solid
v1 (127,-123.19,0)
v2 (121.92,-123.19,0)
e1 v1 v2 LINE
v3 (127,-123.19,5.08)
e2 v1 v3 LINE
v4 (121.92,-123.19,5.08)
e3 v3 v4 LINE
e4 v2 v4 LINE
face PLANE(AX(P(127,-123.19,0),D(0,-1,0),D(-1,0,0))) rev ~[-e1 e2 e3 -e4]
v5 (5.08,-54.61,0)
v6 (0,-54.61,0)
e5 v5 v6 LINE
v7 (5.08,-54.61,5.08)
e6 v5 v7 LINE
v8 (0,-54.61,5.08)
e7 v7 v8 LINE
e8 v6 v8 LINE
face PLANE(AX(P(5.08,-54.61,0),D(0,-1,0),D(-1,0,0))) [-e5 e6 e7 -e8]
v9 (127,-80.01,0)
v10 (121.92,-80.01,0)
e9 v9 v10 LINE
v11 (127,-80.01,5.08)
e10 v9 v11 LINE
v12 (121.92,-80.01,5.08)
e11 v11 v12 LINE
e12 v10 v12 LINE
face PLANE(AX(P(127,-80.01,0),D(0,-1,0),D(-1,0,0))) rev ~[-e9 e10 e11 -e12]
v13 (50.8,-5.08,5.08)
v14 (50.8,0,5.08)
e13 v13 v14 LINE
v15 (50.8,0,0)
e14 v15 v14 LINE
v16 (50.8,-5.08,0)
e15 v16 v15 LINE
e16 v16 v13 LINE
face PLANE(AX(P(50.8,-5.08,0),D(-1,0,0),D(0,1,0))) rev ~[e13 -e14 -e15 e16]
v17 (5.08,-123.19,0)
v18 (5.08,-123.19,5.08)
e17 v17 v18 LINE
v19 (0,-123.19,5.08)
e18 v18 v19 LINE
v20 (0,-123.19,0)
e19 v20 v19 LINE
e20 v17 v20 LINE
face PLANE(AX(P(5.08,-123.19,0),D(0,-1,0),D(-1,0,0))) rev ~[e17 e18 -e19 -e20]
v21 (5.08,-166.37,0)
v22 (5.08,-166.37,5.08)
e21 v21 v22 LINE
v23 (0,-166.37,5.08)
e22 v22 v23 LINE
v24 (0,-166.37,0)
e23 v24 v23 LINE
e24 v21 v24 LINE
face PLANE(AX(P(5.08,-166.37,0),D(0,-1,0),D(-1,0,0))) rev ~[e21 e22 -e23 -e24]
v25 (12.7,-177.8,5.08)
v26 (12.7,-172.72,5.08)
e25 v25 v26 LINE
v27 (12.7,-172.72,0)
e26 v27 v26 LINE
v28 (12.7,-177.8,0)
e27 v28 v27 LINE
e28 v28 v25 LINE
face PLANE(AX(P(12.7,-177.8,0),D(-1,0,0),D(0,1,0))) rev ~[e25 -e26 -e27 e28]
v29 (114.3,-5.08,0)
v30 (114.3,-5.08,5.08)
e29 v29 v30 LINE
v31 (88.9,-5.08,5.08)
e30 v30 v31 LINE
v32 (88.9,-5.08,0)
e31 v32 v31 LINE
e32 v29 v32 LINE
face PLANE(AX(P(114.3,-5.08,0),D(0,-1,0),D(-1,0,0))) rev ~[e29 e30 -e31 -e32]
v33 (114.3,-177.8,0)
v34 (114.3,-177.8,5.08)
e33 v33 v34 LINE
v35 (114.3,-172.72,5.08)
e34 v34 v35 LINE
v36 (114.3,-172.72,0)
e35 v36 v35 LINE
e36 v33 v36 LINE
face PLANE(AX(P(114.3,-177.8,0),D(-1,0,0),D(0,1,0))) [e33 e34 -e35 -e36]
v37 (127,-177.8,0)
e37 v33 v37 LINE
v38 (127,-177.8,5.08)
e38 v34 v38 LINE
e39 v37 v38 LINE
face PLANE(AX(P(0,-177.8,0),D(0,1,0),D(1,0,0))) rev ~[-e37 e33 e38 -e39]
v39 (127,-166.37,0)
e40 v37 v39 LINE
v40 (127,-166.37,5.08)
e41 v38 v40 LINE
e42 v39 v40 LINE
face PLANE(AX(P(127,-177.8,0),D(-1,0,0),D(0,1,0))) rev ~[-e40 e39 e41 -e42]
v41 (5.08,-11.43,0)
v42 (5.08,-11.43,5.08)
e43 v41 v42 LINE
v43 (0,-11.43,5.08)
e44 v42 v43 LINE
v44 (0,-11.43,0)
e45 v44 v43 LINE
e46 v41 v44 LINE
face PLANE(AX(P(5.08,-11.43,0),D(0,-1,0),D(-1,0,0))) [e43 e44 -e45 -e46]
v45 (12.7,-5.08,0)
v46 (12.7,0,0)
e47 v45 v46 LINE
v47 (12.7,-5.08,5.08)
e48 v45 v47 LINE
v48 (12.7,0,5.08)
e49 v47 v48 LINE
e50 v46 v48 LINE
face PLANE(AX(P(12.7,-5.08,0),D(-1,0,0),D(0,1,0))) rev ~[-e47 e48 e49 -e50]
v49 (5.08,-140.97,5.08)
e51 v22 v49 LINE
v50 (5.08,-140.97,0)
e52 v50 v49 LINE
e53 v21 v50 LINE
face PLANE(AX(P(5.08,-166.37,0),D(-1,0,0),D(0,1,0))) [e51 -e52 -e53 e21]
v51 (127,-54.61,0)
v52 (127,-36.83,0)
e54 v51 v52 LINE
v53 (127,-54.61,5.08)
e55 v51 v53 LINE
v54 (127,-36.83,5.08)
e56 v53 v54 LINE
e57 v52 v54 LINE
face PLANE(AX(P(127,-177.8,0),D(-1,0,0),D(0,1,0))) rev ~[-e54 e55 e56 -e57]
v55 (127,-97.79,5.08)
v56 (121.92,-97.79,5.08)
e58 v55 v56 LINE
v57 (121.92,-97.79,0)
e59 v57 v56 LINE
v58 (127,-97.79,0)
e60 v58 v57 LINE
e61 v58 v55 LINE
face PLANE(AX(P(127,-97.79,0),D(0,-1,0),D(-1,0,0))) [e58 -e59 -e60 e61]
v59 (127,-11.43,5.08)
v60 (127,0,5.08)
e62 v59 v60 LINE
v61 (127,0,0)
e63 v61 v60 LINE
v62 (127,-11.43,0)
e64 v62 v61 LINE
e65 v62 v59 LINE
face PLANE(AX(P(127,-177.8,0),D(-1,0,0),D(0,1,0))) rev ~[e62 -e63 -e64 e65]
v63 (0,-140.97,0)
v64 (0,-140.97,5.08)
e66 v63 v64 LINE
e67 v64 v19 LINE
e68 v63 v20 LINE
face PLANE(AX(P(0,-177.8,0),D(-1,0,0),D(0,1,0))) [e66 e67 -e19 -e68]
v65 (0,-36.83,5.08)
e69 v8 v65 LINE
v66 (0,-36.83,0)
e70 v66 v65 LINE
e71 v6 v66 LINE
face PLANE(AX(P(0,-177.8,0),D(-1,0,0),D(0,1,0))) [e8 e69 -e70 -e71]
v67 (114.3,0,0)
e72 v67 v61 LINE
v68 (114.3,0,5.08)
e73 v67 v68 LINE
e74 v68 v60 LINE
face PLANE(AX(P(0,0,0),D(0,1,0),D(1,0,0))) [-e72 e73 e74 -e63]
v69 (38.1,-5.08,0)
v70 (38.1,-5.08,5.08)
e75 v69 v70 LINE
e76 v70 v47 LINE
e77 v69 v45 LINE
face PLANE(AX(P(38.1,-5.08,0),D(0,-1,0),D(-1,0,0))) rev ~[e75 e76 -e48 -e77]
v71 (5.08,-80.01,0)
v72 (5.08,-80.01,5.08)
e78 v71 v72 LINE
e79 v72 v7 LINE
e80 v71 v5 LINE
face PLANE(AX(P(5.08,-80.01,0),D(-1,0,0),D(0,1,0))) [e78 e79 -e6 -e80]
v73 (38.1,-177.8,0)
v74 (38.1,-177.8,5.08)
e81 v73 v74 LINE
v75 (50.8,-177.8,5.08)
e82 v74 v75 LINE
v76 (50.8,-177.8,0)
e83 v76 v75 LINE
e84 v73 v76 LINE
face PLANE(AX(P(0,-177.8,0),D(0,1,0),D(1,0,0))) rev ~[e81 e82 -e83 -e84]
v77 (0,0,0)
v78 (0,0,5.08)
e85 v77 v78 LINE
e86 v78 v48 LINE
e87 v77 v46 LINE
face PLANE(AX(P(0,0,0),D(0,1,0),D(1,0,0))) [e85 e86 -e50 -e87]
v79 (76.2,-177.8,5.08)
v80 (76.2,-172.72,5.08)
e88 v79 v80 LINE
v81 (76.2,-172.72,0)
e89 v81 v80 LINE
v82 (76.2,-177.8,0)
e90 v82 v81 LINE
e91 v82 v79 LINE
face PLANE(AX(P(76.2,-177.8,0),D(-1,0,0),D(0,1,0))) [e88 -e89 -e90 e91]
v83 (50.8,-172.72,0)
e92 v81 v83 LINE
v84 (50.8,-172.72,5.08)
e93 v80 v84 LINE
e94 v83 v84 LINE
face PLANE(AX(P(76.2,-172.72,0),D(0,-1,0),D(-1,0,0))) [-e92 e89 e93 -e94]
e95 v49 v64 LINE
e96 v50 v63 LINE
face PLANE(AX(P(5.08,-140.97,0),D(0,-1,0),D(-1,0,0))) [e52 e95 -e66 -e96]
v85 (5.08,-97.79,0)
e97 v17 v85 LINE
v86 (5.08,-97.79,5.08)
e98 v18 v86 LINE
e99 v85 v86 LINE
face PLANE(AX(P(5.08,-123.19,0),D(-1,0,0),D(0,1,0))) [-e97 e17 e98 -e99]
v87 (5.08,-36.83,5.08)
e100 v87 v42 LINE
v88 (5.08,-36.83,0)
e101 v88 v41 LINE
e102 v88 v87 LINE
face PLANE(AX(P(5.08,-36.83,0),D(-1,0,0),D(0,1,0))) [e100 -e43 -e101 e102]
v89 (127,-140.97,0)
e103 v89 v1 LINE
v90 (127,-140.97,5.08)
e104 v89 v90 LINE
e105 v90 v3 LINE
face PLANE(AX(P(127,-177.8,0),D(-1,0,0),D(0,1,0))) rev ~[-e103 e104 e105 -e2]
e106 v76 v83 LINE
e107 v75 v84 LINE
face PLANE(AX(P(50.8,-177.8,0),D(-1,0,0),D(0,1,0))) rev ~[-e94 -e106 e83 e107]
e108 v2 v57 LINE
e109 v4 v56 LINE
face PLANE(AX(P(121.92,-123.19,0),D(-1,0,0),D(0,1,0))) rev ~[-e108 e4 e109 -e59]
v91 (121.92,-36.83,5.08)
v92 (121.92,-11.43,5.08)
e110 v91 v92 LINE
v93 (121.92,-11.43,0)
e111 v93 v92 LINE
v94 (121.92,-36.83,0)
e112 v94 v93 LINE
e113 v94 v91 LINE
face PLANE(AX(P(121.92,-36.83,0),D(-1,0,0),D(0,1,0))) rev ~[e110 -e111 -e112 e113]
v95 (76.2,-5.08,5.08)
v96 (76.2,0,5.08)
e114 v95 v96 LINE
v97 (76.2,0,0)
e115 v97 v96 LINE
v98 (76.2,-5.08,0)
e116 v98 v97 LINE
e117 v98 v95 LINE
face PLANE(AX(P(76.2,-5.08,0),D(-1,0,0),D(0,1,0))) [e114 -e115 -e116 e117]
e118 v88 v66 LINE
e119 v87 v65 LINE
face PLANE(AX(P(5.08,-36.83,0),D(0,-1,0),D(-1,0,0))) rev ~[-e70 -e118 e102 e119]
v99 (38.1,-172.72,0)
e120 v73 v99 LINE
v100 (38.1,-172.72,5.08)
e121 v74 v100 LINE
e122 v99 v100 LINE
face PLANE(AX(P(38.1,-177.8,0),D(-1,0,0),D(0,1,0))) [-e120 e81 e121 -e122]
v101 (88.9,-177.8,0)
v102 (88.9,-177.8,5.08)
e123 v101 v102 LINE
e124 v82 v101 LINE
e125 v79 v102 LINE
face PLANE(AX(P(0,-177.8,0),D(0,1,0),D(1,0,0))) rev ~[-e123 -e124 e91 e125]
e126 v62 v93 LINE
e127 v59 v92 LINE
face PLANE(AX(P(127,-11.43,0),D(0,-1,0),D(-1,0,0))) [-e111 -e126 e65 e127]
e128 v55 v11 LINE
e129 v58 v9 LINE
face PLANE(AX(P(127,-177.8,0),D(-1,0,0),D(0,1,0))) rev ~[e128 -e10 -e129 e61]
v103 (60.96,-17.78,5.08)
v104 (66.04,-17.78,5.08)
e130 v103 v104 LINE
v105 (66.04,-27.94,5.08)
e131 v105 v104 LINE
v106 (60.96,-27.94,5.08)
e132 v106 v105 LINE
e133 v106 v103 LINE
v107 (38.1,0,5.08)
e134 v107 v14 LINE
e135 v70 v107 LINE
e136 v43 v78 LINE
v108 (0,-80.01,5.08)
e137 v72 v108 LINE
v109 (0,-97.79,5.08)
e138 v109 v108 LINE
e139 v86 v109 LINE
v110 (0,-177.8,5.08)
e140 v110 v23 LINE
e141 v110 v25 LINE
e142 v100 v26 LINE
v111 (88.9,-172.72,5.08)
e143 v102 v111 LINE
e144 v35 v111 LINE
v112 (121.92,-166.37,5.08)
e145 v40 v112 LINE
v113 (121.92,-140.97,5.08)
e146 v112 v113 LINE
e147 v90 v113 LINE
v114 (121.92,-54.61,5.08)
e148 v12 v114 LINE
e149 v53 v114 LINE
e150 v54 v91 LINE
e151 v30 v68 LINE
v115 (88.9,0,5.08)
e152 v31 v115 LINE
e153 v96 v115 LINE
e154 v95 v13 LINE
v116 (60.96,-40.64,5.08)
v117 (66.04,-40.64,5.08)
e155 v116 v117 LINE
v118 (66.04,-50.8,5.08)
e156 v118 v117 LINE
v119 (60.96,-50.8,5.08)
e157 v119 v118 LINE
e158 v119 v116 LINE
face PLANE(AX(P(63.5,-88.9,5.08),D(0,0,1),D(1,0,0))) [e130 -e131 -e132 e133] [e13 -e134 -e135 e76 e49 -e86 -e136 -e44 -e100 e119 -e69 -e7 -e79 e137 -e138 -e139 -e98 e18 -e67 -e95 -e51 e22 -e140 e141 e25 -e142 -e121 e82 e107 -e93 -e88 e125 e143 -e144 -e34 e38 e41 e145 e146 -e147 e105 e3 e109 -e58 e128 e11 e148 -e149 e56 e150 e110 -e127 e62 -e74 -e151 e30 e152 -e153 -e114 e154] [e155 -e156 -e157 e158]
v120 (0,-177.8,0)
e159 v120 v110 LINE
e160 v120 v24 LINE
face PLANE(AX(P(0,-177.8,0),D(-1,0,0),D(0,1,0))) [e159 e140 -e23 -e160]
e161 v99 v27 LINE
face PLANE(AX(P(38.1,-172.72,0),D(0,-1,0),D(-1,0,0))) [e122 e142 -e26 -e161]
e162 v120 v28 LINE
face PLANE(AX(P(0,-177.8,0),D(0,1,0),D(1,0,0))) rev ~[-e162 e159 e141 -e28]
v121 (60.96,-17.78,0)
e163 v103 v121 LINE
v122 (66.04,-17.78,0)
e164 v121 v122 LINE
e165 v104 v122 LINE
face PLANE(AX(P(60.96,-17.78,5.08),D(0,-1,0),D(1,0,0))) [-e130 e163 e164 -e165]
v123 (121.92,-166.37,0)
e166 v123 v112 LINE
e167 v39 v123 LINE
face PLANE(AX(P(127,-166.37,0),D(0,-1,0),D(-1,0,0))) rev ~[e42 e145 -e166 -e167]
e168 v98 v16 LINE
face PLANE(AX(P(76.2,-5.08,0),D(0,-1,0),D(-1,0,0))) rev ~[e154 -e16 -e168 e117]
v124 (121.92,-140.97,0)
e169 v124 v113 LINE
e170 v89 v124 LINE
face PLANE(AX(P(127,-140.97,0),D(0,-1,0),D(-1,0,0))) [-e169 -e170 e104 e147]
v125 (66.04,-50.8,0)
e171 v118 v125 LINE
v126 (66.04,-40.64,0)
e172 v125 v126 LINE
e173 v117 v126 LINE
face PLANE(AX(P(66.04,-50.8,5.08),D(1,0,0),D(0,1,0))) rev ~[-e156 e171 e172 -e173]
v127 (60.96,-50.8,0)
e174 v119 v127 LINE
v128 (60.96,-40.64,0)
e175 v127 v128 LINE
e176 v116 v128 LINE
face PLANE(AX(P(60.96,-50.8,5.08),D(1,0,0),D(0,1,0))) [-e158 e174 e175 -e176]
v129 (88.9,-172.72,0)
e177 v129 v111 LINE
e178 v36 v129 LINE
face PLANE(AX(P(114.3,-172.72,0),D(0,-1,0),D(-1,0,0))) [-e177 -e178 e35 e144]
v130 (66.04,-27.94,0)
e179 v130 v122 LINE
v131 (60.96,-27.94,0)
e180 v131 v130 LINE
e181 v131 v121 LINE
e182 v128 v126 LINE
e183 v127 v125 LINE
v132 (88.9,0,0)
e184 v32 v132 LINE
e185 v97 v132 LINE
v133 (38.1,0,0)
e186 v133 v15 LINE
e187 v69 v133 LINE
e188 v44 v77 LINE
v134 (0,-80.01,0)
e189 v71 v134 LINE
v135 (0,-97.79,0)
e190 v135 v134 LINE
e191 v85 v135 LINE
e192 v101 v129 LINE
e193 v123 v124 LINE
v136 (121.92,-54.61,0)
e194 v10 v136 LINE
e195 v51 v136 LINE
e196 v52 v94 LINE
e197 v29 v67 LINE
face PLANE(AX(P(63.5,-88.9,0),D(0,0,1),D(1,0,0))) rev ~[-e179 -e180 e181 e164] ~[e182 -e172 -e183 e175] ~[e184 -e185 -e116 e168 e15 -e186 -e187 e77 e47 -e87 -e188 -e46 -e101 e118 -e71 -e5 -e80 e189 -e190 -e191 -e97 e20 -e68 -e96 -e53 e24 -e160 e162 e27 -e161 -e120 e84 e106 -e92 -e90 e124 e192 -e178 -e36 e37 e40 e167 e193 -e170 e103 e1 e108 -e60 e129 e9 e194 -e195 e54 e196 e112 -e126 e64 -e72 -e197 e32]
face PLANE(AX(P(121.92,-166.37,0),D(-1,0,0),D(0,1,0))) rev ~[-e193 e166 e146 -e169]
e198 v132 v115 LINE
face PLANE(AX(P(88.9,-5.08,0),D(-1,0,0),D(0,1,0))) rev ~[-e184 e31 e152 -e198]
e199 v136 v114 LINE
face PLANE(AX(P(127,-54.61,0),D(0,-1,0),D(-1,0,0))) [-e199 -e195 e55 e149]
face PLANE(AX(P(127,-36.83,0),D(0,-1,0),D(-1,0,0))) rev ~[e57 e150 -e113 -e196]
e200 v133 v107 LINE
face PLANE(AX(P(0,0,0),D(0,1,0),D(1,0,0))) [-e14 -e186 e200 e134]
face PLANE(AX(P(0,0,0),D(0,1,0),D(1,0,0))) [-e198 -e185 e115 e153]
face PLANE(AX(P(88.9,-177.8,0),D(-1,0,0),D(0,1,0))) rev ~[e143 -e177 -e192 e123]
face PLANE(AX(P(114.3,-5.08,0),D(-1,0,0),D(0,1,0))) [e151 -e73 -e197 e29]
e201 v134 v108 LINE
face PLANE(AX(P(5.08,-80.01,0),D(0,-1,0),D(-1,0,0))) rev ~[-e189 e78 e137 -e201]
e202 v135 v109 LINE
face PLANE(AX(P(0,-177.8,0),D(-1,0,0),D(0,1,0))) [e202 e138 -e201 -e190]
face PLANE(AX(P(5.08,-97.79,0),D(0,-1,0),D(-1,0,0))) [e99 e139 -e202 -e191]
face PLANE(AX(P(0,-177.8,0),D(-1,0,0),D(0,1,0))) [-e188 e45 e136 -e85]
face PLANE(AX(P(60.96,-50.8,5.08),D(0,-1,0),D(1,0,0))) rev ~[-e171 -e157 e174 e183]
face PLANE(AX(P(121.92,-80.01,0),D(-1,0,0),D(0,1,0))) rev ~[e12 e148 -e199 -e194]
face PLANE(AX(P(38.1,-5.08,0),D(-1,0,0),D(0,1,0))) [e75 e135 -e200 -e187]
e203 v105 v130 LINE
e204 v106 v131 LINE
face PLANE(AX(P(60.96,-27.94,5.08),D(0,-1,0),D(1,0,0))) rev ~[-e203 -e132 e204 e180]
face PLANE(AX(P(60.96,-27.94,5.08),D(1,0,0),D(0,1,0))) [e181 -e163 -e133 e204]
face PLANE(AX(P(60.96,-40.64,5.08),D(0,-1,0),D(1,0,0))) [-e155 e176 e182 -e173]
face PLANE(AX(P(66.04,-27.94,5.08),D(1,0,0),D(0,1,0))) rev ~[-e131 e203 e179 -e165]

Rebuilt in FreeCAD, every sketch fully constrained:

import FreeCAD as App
import Part
import Sketcher
from FreeCAD import Vector
Q = App.Units.Quantity


def add_polygon(sketch, points):
    """Adds a closed chain of lines whose ends are joined by coincident constraints."""
    first, n = sketch.GeometryCount, len(points)
    for a, b in zip(points, points[1:] + points[:1]):
        sketch.addGeometry(Part.LineSegment(App.Vector(*a, 0), App.Vector(*b, 0)), False)
    for i in range(n):
        sketch.addConstraint(Sketcher.Constraint("Coincident", first + i, 2, first + (i + 1) % n, 1))

doc = App.newDocument("Part")
body = doc.addObject("PartDesign::Body", "Body")

sketch1 = body.newObject("Sketcher::SketchObject", "Sketch")
sketch1.AttachmentSupport = (doc.getObject("XY_Plane"), [""])
sketch1.MapMode = "FlatFace"
add_polygon(sketch1, [(0, 0), (0, -178), (127, -178), (127, 0)])
sketch1.addConstraint([
    Sketcher.Constraint("Vertical", 0),
    Sketcher.Constraint("Horizontal", 1),
    Sketcher.Constraint("Vertical", 2),
    Sketcher.Constraint("Horizontal", 3),
    Sketcher.Constraint("Coincident", 3, 2, -1, 1),
    Sketcher.Constraint("DistanceX", 1, 1, 1, 2, Q("5 in")),
    Sketcher.Constraint("DistanceY", 0, 2, 0, 1, Q("7 in")),
])
pad1 = body.newObject("PartDesign::Pad", "Pad")
pad1.Profile = sketch1
pad1.Length = Q("0.2 in")

sketch2 = body.newObject("Sketcher::SketchObject", "Sketch001")
sketch2.AttachmentSupport = (doc.getObject("XY_Plane"), [""])
sketch2.MapMode = "FlatFace"
add_polygon(sketch2, [(127, -141), (127, -166), (122, -166), (122, -141)])
sketch2.addConstraint([
    Sketcher.Constraint("Vertical", 0),
    Sketcher.Constraint("Horizontal", 1),
    Sketcher.Constraint("Vertical", 2),
    Sketcher.Constraint("Horizontal", 3),
    Sketcher.Constraint("DistanceY", 0, 2, 0, 1, Q("1 in")),
    Sketcher.Constraint("DistanceX", 1, 2, 1, 1, Q("0.2 in")),
    Sketcher.Constraint("DistanceX", -1, 1, 0, 2, Q("5 in")),
    Sketcher.Constraint("DistanceY", 0, 2, -1, 1, Q("6.55 in")),
])
pocket1 = body.newObject("PartDesign::Pocket", "Pocket")
pocket1.Profile = sketch2
pocket1.Length = Q("0.2 in")
pocket1.Reversed = True
doc.recompute()

linearpattern = body.newObject("PartDesign::LinearPattern", "LinearPattern")
linearpattern.Originals = [pocket1]
linearpattern.Direction = (doc.getObject("Y_Axis"), [""])
linearpattern.Mode = "offset"
linearpattern.Offset = Q("1.7 in")
linearpattern.Occurrences = 5
body.Tip = linearpattern

sketch3 = body.newObject("Sketcher::SketchObject", "Sketch002")
sketch3.AttachmentSupport = (doc.getObject("XY_Plane"), [""])
sketch3.MapMode = "FlatFace"
add_polygon(sketch3, [(5, -141), (5, -166), (0, -166), (0, -141)])
sketch3.addConstraint([
    Sketcher.Constraint("Vertical", 0),
    Sketcher.Constraint("Horizontal", 1),
    Sketcher.Constraint("Vertical", 2),
    Sketcher.Constraint("Horizontal", 3),
    Sketcher.Constraint("PointOnObject", 1, 2, -2),
    Sketcher.Constraint("DistanceY", 0, 2, 0, 1, Q("1 in")),
    Sketcher.Constraint("DistanceX", 1, 2, 1, 1, Q("0.2 in")),
    Sketcher.Constraint("DistanceY", 0, 2, -1, 1, Q("6.55 in")),
])
pocket2 = body.newObject("PartDesign::Pocket", "Pocket001")
pocket2.Profile = sketch3
pocket2.Length = Q("0.2 in")
pocket2.Reversed = True
doc.recompute()

linearpattern2 = body.newObject("PartDesign::LinearPattern", "LinearPattern001")
linearpattern2.Originals = [pocket2]
linearpattern2.Direction = (doc.getObject("Y_Axis"), [""])
linearpattern2.Mode = "offset"
linearpattern2.Offset = Q("1.7 in")
linearpattern2.Occurrences = 4
body.Tip = linearpattern2

sketch4 = body.newObject("Sketcher::SketchObject", "Sketch003")
sketch4.AttachmentSupport = (doc.getObject("XY_Plane"), [""])
sketch4.MapMode = "FlatFace"
add_polygon(sketch4, [(114, -173), (114, -178), (89, -178), (89, -173)])
sketch4.addConstraint([
    Sketcher.Constraint("Vertical", 0),
    Sketcher.Constraint("Horizontal", 1),
    Sketcher.Constraint("Vertical", 2),
    Sketcher.Constraint("Horizontal", 3),
    Sketcher.Constraint("DistanceX", 1, 2, 1, 1, Q("1 in")),
    Sketcher.Constraint("DistanceY", 0, 2, 0, 1, Q("0.2 in")),
    Sketcher.Constraint("DistanceY", 0, 2, -1, 1, Q("7 in")),
    Sketcher.Constraint("DistanceX", -1, 1, 0, 2, Q("4.5 in")),
])
pocket3 = body.newObject("PartDesign::Pocket", "Pocket002")
pocket3.Profile = sketch4
pocket3.Length = Q("0.2 in")
pocket3.Reversed = True
doc.recompute()

linearpattern3 = body.newObject("PartDesign::LinearPattern", "LinearPattern002")
linearpattern3.Originals = [pocket3]
linearpattern3.Direction = (doc.getObject("X_Axis"), [""])
linearpattern3.Mode = "offset"
linearpattern3.Offset = Q("1.5 in")
linearpattern3.Occurrences = 3
linearpattern3.Reversed = True
body.Tip = linearpattern3

sketch5 = body.newObject("Sketcher::SketchObject", "Sketch004")
sketch5.AttachmentSupport = (doc.getObject("XY_Plane"), [""])
sketch5.MapMode = "FlatFace"
add_polygon(sketch5, [(38, 0), (38, -5), (13, -5), (13, 0)])
sketch5.addConstraint([
    Sketcher.Constraint("Vertical", 0),
    Sketcher.Constraint("Horizontal", 1),
    Sketcher.Constraint("Vertical", 2),
    Sketcher.Constraint("Horizontal", 3),
    Sketcher.Constraint("PointOnObject", 2, 2, -1),
    Sketcher.Constraint("DistanceX", 1, 2, 1, 1, Q("1 in")),
    Sketcher.Constraint("DistanceY", 0, 2, 0, 1, Q("0.2 in")),
    Sketcher.Constraint("DistanceX", -1, 1, 0, 2, Q("1.5 in")),
])
pocket4 = body.newObject("PartDesign::Pocket", "Pocket003")
pocket4.Profile = sketch5
pocket4.Length = Q("0.2 in")
pocket4.Reversed = True
doc.recompute()

linearpattern4 = body.newObject("PartDesign::LinearPattern", "LinearPattern003")
linearpattern4.Originals = [pocket4]
linearpattern4.Direction = (doc.getObject("X_Axis"), [""])
linearpattern4.Mode = "offset"
linearpattern4.Offset = Q("1.5 in")
linearpattern4.Occurrences = 3
body.Tip = linearpattern4

sketch6 = body.newObject("Sketcher::SketchObject", "Sketch005")
sketch6.AttachmentSupport = (doc.getObject("XY_Plane"), [""])
sketch6.MapMode = "FlatFace"
sketch6.AttachmentOffset = App.Placement(Vector(0, 0, 0.2 * 25.4), App.Rotation())
add_polygon(sketch6, [(61, -18), (61, -28), (66, -28), (66, -18)])
add_polygon(sketch6, [(61, -41), (61, -51), (66, -51), (66, -41)])
sketch6.addConstraint([
    Sketcher.Constraint("Vertical", 0),
    Sketcher.Constraint("Horizontal", 1),
    Sketcher.Constraint("Vertical", 2),
    Sketcher.Constraint("Horizontal", 3),
    Sketcher.Constraint("Vertical", 4),
    Sketcher.Constraint("Horizontal", 5),
    Sketcher.Constraint("Vertical", 6),
    Sketcher.Constraint("Horizontal", 7),
    Sketcher.Constraint("Vertical", 3, 2, 4, 2),
    Sketcher.Constraint("Vertical", 2, 2, 5, 2),
    Sketcher.Constraint("Equal", 2, 4),
    Sketcher.Constraint("DistanceX", 1, 1, 1, 2, Q("0.2 in")),
    Sketcher.Constraint("DistanceY", 0, 2, 0, 1, Q("0.4 in")),
    Sketcher.Constraint("DistanceY", 4, 2, -1, 1, Q("2 in")),
    Sketcher.Constraint("DistanceX", -1, 1, 0, 2, Q("2.4 in")),
    Sketcher.Constraint("DistanceY", 0, 2, -1, 1, Q("1.1 in")),
])
pocket5 = body.newObject("PartDesign::Pocket", "Pocket004")
pocket5.Profile = sketch6
pocket5.Length = Q("0.2 in")

doc.recompute()
